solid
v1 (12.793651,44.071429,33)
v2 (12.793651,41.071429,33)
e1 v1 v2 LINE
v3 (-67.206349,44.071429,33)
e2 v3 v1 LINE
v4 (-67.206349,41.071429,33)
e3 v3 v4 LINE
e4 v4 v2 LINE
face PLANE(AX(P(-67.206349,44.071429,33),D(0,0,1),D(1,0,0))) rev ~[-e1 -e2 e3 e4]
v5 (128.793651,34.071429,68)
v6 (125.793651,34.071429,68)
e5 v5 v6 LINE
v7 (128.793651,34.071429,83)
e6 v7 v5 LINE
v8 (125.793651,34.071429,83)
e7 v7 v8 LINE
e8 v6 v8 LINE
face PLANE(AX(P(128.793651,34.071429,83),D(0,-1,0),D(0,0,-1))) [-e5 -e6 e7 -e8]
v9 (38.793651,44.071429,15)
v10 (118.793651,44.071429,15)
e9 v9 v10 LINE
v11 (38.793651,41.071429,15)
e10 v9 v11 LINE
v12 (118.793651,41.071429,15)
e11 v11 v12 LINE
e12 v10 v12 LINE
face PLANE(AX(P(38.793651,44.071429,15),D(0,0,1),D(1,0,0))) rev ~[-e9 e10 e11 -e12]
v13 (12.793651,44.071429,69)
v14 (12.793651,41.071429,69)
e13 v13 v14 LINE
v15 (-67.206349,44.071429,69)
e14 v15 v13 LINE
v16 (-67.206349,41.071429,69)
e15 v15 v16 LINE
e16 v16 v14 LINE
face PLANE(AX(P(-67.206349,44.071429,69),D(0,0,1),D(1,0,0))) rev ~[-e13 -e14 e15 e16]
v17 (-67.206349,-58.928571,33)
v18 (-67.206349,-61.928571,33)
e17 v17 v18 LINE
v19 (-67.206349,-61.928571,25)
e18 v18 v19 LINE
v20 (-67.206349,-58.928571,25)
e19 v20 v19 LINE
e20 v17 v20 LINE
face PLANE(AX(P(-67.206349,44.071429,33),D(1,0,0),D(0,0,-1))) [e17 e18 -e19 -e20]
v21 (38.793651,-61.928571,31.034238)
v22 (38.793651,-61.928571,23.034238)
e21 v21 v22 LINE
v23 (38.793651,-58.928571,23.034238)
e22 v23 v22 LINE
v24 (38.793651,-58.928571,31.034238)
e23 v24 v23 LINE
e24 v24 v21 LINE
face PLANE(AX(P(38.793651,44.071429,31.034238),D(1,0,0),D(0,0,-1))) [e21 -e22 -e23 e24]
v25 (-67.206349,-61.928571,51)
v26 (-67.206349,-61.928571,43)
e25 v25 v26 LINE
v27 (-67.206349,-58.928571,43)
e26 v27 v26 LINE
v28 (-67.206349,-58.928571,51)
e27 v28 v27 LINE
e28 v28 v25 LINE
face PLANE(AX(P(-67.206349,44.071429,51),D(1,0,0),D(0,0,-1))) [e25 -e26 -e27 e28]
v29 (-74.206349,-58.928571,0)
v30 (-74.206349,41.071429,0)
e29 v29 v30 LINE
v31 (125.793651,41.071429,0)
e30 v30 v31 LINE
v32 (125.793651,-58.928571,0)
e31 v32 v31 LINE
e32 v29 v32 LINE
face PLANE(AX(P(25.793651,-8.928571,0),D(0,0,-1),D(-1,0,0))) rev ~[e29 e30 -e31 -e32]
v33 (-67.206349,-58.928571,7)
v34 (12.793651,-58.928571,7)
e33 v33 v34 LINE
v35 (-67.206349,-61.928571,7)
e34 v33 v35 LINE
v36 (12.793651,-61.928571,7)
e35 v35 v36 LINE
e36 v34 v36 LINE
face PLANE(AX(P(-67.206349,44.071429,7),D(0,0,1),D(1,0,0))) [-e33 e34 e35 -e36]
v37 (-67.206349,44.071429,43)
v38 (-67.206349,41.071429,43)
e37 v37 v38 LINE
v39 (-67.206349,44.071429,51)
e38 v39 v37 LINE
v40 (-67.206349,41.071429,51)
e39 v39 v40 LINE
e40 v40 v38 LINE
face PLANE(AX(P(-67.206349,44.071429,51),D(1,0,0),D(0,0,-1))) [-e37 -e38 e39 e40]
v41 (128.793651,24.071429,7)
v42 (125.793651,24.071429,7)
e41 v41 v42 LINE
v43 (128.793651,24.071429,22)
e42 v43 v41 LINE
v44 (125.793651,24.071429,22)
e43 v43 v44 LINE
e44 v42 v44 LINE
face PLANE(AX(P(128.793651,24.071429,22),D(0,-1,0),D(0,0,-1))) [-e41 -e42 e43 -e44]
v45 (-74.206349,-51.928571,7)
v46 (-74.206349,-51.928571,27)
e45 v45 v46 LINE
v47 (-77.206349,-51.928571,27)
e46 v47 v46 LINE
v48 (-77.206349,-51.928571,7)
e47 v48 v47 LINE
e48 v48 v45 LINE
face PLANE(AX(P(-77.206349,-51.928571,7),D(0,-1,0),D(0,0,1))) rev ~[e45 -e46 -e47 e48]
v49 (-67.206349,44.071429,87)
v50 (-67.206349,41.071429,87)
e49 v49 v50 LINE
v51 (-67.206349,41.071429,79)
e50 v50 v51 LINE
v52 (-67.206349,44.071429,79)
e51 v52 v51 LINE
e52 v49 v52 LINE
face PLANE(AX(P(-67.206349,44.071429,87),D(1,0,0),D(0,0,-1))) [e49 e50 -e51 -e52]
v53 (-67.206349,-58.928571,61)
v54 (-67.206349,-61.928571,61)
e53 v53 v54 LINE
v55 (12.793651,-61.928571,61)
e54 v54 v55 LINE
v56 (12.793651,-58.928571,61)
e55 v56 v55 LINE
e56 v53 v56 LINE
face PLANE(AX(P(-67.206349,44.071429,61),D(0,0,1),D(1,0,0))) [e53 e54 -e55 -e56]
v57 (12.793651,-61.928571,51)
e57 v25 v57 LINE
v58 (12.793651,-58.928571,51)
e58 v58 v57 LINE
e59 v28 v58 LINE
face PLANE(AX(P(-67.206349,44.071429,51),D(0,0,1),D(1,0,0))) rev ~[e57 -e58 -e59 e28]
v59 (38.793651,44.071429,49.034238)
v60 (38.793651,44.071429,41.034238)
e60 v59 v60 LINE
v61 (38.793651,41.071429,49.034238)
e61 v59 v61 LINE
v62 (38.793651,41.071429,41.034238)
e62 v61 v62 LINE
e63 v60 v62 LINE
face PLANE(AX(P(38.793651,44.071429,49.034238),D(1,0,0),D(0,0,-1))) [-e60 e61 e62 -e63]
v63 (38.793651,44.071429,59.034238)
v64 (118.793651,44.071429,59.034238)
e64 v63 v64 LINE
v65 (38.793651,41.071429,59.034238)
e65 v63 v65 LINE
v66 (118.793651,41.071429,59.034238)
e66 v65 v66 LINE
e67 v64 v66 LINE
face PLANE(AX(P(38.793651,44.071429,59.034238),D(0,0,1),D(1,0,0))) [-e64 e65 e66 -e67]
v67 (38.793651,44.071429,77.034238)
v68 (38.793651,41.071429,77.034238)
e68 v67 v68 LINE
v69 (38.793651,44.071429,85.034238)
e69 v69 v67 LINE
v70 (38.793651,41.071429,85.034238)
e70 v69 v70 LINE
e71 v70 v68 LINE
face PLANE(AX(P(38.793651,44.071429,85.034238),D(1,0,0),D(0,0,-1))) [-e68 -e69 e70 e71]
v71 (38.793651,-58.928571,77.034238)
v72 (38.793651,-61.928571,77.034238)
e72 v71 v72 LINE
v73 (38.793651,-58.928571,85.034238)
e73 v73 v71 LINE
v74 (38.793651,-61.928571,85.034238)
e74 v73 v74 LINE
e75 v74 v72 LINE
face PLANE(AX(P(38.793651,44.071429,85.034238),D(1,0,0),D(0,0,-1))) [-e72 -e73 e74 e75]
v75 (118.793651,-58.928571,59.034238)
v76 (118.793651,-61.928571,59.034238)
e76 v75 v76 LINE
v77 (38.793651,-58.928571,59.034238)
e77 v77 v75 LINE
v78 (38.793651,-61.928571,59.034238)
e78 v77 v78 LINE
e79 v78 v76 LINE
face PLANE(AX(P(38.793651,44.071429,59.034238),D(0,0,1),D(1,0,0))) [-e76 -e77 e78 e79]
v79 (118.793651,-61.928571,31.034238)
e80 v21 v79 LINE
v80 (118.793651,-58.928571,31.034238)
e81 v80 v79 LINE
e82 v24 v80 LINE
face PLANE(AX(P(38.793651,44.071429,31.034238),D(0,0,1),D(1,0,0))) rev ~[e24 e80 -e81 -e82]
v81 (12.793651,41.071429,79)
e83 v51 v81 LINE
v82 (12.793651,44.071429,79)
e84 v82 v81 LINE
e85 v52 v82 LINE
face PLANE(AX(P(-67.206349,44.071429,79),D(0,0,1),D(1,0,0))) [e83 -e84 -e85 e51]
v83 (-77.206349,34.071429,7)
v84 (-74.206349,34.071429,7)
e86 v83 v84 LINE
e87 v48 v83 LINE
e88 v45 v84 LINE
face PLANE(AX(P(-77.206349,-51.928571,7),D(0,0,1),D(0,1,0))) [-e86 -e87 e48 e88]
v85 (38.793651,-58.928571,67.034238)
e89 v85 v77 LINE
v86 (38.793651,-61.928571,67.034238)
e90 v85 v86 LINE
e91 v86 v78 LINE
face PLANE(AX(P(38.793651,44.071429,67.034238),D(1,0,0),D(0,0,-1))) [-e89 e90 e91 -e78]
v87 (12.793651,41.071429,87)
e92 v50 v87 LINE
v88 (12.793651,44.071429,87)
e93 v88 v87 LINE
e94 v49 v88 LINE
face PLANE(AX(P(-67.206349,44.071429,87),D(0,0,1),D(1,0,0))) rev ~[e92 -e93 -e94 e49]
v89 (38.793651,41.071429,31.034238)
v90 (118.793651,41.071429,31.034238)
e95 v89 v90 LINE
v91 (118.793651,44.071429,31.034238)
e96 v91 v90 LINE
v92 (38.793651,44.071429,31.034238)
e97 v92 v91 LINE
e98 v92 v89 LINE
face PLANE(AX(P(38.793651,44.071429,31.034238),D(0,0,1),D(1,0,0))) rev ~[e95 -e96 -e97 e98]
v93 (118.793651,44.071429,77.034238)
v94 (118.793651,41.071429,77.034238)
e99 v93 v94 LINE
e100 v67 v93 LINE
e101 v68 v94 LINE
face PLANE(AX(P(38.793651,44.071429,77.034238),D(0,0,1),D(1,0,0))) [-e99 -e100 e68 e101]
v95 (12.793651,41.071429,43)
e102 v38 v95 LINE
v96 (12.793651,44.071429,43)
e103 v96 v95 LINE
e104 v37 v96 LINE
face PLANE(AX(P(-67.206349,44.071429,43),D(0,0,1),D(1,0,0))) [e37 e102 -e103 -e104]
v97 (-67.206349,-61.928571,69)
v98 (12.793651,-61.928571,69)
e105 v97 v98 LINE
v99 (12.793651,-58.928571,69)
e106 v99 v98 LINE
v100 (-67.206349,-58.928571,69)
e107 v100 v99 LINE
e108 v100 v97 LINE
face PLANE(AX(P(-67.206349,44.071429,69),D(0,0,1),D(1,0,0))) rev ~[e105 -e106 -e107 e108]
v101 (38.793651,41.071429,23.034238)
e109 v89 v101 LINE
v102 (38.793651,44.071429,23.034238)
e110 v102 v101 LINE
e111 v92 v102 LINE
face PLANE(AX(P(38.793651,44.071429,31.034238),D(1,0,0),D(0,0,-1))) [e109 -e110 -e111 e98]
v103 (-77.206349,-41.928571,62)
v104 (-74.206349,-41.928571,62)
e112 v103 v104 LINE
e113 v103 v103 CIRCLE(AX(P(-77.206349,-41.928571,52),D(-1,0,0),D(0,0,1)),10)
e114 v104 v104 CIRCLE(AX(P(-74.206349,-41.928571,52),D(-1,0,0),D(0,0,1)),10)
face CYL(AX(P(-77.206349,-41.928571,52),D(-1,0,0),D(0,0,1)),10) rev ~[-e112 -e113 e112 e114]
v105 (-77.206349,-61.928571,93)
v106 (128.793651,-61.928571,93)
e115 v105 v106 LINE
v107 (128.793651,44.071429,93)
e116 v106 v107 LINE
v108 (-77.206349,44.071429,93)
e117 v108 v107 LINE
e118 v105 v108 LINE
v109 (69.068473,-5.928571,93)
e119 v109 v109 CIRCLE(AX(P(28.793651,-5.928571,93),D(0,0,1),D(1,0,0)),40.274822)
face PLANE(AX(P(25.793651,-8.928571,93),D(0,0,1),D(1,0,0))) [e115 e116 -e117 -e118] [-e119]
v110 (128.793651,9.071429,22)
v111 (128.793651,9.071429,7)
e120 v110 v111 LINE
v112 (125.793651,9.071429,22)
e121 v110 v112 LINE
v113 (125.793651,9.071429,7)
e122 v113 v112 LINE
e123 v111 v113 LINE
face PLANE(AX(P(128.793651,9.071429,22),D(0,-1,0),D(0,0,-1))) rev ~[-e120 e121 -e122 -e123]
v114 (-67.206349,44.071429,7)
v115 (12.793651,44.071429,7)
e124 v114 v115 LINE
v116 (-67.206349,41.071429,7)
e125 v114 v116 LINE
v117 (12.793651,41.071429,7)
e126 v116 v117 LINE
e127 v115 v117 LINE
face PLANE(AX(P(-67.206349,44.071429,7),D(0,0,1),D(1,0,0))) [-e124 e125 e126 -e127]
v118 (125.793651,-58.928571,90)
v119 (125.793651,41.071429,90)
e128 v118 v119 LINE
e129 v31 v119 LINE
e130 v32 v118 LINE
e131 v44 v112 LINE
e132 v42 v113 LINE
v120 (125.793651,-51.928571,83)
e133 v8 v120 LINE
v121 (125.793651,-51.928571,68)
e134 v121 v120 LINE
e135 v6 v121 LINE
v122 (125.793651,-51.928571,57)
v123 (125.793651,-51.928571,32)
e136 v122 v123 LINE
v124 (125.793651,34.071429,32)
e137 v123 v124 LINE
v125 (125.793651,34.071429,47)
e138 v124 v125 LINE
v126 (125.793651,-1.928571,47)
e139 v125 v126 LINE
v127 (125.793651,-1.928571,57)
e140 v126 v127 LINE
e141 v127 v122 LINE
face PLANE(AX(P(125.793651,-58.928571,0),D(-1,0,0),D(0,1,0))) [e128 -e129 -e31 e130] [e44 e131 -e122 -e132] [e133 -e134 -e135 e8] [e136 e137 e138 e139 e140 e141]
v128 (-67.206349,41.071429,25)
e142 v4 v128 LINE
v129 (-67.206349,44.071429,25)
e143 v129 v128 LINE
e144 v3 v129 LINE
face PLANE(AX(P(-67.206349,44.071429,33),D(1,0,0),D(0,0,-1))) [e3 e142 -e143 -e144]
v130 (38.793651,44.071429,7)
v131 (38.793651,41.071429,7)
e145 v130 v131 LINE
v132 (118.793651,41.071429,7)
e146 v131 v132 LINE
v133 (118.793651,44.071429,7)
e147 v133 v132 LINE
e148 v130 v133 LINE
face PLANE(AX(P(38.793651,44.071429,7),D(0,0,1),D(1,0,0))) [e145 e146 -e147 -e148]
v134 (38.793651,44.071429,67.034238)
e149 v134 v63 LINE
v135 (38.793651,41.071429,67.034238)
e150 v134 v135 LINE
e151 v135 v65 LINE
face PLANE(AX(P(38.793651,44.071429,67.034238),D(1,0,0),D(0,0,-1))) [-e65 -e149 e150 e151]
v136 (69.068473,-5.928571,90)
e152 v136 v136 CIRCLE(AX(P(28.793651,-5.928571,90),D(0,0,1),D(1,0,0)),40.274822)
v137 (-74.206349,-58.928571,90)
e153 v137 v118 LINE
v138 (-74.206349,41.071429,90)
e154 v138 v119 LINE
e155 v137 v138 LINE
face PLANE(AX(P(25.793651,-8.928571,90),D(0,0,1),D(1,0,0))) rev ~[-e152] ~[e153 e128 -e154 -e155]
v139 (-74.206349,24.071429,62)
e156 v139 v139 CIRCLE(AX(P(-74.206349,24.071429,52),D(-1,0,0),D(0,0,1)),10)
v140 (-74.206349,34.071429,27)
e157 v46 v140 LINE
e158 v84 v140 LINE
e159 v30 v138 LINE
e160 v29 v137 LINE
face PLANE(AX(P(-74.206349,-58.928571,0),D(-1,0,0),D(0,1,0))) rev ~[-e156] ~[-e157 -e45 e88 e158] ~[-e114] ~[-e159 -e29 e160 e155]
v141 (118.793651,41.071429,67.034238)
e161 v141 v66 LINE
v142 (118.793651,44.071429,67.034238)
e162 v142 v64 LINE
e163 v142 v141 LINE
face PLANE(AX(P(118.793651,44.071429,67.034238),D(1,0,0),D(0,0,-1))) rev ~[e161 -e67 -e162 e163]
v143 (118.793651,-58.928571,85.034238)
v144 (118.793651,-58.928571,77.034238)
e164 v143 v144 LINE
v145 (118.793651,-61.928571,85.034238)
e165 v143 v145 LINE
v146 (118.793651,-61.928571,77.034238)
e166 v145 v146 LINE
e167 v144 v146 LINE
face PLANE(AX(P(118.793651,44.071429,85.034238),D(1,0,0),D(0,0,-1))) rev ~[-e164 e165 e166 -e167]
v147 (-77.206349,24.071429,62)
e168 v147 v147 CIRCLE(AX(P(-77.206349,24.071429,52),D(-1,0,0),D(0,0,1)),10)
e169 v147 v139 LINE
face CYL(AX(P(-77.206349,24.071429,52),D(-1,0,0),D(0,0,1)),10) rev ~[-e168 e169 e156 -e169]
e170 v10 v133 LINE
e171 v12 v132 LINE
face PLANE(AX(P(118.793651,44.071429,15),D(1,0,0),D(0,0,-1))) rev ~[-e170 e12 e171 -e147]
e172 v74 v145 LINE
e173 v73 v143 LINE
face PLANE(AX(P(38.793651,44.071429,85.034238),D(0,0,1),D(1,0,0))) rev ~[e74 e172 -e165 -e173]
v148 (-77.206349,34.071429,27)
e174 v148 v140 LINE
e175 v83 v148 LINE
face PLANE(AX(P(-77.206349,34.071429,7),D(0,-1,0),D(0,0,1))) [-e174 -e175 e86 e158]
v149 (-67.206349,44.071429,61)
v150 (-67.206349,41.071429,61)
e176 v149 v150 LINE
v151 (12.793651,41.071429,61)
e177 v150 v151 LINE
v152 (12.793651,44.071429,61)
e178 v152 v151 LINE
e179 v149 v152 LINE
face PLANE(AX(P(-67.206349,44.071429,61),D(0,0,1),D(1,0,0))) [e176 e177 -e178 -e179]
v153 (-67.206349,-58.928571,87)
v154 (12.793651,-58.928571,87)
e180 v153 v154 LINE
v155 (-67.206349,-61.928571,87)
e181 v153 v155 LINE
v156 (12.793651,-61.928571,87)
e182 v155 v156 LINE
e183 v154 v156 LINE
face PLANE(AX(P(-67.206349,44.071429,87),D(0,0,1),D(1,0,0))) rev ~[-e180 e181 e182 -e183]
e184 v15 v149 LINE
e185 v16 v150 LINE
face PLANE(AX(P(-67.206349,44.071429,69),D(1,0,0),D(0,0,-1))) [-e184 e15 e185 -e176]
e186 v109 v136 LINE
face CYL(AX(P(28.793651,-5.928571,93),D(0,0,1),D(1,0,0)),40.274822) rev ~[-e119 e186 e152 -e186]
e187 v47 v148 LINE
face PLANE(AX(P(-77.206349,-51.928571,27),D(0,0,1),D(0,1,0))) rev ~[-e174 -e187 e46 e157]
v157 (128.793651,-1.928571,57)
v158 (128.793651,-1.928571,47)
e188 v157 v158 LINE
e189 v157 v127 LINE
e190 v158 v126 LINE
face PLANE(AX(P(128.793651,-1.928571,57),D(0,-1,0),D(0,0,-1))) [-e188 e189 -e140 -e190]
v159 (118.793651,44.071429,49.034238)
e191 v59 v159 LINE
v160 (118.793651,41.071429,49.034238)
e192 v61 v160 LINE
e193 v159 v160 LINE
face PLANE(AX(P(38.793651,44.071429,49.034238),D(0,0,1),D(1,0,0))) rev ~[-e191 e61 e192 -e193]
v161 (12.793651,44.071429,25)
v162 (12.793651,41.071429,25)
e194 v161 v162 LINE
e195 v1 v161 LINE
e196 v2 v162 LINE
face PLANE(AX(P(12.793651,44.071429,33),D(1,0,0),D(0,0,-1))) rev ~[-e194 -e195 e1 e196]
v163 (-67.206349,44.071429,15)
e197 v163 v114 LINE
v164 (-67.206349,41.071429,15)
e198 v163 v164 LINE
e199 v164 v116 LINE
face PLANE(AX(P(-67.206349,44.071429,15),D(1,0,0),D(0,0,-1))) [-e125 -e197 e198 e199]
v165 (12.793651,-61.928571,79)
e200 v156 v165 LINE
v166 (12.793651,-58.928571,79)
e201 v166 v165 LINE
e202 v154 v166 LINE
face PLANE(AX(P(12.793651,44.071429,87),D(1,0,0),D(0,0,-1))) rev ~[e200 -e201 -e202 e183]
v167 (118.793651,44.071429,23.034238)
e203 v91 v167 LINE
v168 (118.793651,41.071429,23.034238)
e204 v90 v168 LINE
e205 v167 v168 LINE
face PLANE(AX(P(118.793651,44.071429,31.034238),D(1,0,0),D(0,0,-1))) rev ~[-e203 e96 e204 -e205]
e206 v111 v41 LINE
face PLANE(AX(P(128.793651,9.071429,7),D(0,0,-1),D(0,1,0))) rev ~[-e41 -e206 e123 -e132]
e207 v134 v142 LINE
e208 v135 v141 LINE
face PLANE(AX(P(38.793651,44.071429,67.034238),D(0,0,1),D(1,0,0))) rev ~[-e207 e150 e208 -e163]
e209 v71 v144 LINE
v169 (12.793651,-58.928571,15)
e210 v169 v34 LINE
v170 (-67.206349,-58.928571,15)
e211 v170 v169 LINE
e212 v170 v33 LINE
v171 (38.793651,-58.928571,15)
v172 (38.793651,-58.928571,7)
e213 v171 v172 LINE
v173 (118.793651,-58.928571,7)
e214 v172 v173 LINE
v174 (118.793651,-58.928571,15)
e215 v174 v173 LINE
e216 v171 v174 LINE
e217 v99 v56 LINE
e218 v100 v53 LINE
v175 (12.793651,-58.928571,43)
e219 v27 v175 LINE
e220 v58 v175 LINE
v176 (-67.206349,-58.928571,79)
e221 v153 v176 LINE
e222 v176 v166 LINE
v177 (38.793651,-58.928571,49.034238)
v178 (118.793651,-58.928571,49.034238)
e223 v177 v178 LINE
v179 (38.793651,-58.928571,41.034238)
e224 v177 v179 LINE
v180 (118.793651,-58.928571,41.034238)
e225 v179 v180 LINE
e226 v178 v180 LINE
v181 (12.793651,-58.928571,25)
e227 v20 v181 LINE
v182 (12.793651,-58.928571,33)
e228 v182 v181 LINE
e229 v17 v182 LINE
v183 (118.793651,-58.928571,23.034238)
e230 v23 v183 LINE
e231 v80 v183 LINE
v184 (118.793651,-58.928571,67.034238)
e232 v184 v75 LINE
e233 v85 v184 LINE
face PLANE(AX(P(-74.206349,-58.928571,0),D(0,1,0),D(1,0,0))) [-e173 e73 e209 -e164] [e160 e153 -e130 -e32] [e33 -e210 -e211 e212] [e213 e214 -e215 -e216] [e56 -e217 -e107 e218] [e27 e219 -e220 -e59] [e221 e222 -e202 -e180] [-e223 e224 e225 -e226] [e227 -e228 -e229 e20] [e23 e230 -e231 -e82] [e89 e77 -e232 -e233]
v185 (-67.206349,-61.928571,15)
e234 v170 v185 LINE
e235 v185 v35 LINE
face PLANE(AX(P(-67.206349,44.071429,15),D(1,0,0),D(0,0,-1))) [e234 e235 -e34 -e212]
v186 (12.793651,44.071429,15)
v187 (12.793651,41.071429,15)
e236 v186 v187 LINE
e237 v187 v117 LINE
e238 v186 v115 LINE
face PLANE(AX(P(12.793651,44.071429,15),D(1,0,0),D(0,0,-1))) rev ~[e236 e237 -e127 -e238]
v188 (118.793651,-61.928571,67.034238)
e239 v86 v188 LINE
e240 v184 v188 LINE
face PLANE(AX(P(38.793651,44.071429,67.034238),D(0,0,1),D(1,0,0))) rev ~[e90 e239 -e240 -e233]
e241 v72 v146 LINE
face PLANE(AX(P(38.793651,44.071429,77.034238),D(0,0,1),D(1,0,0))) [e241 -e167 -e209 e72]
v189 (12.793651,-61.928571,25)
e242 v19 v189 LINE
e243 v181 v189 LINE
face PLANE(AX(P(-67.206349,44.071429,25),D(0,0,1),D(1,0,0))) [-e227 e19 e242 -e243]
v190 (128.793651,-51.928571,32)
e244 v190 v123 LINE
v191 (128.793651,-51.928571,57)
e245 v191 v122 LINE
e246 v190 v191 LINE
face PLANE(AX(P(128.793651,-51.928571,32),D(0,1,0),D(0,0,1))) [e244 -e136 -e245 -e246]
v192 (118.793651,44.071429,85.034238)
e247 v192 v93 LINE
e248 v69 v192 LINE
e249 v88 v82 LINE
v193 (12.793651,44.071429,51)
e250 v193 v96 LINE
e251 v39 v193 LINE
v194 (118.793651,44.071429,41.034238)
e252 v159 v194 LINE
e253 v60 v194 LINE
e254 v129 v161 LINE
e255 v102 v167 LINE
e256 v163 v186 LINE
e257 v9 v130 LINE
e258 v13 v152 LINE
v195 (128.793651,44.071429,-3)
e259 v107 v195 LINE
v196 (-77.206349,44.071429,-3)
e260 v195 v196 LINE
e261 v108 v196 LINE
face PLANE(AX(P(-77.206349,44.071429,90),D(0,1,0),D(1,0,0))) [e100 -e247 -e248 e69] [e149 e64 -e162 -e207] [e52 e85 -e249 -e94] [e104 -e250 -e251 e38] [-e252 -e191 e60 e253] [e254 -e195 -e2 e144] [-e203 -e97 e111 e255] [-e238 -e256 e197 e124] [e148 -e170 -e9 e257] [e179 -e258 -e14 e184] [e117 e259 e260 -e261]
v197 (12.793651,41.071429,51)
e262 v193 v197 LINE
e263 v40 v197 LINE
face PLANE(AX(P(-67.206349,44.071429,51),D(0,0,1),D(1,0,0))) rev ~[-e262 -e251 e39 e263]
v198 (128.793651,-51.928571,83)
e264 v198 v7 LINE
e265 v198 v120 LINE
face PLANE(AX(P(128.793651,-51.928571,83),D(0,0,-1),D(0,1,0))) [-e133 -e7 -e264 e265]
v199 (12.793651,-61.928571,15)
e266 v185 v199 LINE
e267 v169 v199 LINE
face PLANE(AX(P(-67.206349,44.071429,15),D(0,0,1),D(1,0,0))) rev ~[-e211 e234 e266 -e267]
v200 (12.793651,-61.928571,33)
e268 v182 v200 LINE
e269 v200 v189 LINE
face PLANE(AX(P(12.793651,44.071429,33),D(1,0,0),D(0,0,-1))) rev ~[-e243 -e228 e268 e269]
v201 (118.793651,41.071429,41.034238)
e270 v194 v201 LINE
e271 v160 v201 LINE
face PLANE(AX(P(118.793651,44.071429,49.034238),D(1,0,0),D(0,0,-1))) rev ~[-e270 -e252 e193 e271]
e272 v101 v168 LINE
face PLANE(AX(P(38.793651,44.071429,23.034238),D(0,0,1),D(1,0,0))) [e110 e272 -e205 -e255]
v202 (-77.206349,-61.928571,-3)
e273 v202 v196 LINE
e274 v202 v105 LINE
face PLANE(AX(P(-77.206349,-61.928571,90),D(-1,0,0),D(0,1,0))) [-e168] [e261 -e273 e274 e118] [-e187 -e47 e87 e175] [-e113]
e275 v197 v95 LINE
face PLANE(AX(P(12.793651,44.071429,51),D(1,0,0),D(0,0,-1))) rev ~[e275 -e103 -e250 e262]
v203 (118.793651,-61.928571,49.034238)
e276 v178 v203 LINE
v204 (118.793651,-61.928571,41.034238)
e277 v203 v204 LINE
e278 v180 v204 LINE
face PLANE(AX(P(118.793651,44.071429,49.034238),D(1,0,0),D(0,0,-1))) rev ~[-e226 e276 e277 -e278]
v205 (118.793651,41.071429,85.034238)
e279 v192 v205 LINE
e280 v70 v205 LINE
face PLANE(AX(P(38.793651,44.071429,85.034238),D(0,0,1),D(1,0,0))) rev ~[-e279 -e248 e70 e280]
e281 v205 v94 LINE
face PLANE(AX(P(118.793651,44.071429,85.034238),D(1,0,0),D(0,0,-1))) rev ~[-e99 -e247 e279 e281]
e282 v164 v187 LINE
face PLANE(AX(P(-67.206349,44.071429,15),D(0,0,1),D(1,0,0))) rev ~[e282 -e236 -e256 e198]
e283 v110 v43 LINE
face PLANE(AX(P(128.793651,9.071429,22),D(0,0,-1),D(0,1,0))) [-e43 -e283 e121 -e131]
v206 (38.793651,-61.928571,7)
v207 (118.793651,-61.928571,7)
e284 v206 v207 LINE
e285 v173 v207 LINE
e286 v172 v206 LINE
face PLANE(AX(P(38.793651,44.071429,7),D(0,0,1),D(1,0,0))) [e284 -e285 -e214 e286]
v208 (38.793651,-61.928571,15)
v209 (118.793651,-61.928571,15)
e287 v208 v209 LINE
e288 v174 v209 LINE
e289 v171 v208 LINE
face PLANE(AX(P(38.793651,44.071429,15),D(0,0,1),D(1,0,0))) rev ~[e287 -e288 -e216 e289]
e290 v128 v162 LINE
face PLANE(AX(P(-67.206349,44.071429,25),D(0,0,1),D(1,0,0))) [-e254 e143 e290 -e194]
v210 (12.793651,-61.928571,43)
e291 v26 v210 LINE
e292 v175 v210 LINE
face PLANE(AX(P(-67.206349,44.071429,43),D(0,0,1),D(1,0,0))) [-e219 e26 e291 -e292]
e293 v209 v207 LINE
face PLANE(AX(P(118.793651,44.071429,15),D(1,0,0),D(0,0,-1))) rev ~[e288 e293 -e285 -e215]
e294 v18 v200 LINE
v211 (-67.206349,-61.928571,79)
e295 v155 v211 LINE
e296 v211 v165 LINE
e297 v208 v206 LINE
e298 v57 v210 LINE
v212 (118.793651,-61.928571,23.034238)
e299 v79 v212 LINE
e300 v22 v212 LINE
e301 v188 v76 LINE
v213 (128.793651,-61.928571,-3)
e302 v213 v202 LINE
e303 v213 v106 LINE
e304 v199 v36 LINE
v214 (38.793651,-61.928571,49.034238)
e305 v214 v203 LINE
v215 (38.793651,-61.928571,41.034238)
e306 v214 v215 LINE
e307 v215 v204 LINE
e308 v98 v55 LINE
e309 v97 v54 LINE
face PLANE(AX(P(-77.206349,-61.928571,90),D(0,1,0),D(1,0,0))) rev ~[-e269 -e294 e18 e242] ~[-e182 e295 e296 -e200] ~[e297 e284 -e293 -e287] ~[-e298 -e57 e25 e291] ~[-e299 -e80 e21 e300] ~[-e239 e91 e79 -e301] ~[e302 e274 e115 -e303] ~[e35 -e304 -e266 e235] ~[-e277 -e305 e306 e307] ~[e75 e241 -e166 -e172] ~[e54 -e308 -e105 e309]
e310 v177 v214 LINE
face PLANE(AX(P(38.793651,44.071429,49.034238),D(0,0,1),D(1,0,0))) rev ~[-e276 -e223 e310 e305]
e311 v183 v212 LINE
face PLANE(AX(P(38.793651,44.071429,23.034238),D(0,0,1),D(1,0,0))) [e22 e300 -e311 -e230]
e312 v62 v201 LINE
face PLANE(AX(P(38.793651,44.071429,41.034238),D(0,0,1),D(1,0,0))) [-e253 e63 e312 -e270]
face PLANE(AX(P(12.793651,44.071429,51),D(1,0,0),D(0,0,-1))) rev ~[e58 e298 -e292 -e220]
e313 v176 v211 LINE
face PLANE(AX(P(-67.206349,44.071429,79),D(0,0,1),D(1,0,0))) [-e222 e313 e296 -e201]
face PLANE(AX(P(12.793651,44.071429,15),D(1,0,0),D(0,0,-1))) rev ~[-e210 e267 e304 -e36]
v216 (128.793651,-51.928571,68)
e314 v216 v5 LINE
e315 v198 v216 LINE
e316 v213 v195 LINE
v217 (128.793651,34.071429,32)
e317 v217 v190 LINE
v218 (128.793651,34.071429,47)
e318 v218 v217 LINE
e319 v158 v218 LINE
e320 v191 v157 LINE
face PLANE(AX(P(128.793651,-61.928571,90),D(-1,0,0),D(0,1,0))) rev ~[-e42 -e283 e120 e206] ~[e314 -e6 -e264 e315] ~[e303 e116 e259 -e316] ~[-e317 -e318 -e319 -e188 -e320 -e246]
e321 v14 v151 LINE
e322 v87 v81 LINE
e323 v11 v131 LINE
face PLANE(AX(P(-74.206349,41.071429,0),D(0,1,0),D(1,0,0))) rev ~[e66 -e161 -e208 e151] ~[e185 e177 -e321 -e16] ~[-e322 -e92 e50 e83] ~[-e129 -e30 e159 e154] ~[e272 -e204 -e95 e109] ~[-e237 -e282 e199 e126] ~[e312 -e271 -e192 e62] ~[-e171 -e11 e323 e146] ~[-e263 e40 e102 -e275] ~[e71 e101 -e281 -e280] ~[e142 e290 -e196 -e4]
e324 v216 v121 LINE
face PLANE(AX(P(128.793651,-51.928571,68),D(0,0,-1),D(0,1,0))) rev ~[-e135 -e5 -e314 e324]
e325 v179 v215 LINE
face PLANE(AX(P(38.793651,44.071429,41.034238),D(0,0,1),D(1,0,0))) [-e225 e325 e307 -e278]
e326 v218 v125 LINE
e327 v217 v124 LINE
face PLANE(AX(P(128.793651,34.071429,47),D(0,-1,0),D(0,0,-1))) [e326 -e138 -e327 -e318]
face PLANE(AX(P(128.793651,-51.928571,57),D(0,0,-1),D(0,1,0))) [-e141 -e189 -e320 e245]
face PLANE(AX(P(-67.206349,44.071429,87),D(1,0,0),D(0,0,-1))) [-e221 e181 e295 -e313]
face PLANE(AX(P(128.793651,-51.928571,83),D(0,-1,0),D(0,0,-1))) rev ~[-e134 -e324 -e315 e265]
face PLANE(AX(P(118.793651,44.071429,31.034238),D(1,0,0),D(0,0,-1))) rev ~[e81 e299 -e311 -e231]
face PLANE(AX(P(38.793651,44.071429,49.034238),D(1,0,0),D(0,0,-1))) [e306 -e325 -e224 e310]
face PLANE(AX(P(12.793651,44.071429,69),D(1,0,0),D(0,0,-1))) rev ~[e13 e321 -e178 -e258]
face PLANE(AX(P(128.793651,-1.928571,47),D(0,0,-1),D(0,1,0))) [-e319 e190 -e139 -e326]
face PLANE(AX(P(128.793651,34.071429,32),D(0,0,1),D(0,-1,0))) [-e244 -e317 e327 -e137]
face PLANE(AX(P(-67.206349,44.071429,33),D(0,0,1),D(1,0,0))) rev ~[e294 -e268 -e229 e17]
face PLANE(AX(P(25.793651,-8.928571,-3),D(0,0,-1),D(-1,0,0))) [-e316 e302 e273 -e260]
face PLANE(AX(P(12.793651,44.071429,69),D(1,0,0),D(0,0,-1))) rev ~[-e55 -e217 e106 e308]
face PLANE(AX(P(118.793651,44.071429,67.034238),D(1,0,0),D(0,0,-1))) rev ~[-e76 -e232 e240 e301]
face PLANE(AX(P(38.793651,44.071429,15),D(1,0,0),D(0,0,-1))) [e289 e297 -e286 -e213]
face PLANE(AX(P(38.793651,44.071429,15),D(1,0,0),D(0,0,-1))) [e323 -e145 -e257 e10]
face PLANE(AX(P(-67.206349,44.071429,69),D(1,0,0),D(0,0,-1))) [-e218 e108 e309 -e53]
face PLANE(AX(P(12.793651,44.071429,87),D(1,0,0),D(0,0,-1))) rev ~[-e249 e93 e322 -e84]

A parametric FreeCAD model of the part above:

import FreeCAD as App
import Part
import Sketcher
from FreeCAD import Vector

doc = App.newDocument("Part")
params = doc.addObject("Spreadsheet::Sheet", "Params")
for row, (alias, value) in enumerate([
    ("sketch1_width", "206 mm"),
    ("sketch1_width2", "200 mm"),
    ("sketch1_height", "106 mm"),
    ("sketch1_height2", "100 mm"),
    ("pad1_length", "90 mm"),
    ("sketch2_width", "206 mm"),
    ("sketch2_height", "106 mm"),
    ("pad2_length", "3 mm"),
    ("sketch3_width", "206 mm"),
    ("sketch3_height", "106 mm"),
    ("pad3_length", "3 mm"),
    ("pocket1_length", "6 mm"),
    ("sketch5_width", "80 mm"),
    ("sketch5_height", "8 mm"),
    ("pocket2_length", "150 mm"),
    ("sketch6_diameter", "20 mm"),
    ("sketch6_width", "86 mm"),
    ("sketch6_height", "20 mm"),
    ("pocket3_length", "10 mm"),
    ("sketch7_width", "86 mm"),
    ("sketch7_width2", "36 mm"),
    ("sketch7_width3", "15 mm"),
    ("sketch7_height", "10 mm"),
    ("pocket4_length", "10 mm"),
], start=1):
    params.set(f"A{row}", alias)
    params.set(f"B{row}", "=" + value)
    params.setAlias(f"B{row}", alias)

body = doc.addObject("PartDesign::Body", "Body")

# Sketch on XY plane
sketch1 = body.newObject("Sketcher::SketchObject", "Sketch")
sketch1.AttachmentSupport = (doc.getObject("XY_Plane"), [""])
sketch1.MapMode = "FlatFace"
sketch1.addGeometry(Part.LineSegment(Vector(-77, 44, 0), Vector(-77, -62, 0)), False)
sketch1.addGeometry(Part.LineSegment(Vector(-77, -62, 0), Vector(129, -62, 0)), False)
sketch1.addGeometry(Part.LineSegment(Vector(129, -62, 0), Vector(129, 44, 0)), False)
sketch1.addGeometry(Part.LineSegment(Vector(129, 44, 0), Vector(-77, 44, 0)), False)
sketch1.addGeometry(Part.LineSegment(Vector(126, -59, 0), Vector(-74, -59, 0)), False)
sketch1.addGeometry(Part.LineSegment(Vector(-74, -59, 0), Vector(-74, 41, 0)), False)
sketch1.addGeometry(Part.LineSegment(Vector(-74, 41, 0), Vector(126, 41, 0)), False)
sketch1.addGeometry(Part.LineSegment(Vector(126, 41, 0), Vector(126, -59, 0)), False)
sketch1.addConstraint(Sketcher.Constraint("Coincident", 0, 2, 1, 1))
sketch1.addConstraint(Sketcher.Constraint("Coincident", 1, 2, 2, 1))
sketch1.addConstraint(Sketcher.Constraint("Coincident", 2, 2, 3, 1))
sketch1.addConstraint(Sketcher.Constraint("Coincident", 3, 2, 0, 1))
sketch1.addConstraint(Sketcher.Constraint("Coincident", 4, 2, 5, 1))
sketch1.addConstraint(Sketcher.Constraint("Coincident", 5, 2, 6, 1))
sketch1.addConstraint(Sketcher.Constraint("Coincident", 6, 2, 7, 1))
sketch1.addConstraint(Sketcher.Constraint("Coincident", 7, 2, 4, 1))
sketch1.addConstraint(Sketcher.Constraint("Vertical", 0))
sketch1.addConstraint(Sketcher.Constraint("Horizontal", 1))
sketch1.addConstraint(Sketcher.Constraint("Vertical", 2))
sketch1.addConstraint(Sketcher.Constraint("Horizontal", 3))
sketch1.addConstraint(Sketcher.Constraint("Horizontal", 4))
sketch1.addConstraint(Sketcher.Constraint("Vertical", 5))
sketch1.addConstraint(Sketcher.Constraint("Horizontal", 6))
sketch1.addConstraint(Sketcher.Constraint("Vertical", 7))
sketch1.addConstraint(Sketcher.Constraint("DistanceX", 1, 1, 1, 2, 206.0))
sketch1.addConstraint(Sketcher.Constraint("DistanceX", 4, 2, 4, 1, 200.0))
sketch1.addConstraint(Sketcher.Constraint("DistanceY", 0, 2, 0, 1, 106.0))
sketch1.addConstraint(Sketcher.Constraint("DistanceY", 5, 1, 5, 2, 100.0))
sketch1.addConstraint(Sketcher.Constraint("DistanceX", 0, 2, 4, 2, 3.0))
sketch1.addConstraint(Sketcher.Constraint("DistanceY", 0, 2, 4, 2, 3.0))
sketch1.addConstraint(Sketcher.Constraint("DistanceX", 0, 2, -1, 1, 77.206349))
sketch1.addConstraint(Sketcher.Constraint("DistanceY", 0, 2, -1, 1, 61.928571))
sketch1.setExpression("Constraints[16]", "Params.sketch1_width")
sketch1.setExpression("Constraints[17]", "Params.sketch1_width2")
sketch1.setExpression("Constraints[18]", "Params.sketch1_height")
sketch1.setExpression("Constraints[19]", "Params.sketch1_height2")
pad1 = body.newObject("PartDesign::Pad", "Pad")
pad1.Profile = sketch1
pad1.setExpression("Length", "Params.pad1_length")

# Sketch on XY plane
sketch2 = body.newObject("Sketcher::SketchObject", "Sketch001")
sketch2.AttachmentSupport = (doc.getObject("XY_Plane"), [""])
sketch2.MapMode = "FlatFace"
sketch2.addGeometry(Part.LineSegment(Vector(129, 44, 0), Vector(129, -62, 0)), False)
sketch2.addGeometry(Part.LineSegment(Vector(129, -62, 0), Vector(-77, -62, 0)), False)
sketch2.addGeometry(Part.LineSegment(Vector(-77, -62, 0), Vector(-77, 44, 0)), False)
sketch2.addGeometry(Part.LineSegment(Vector(-77, 44, 0), Vector(129, 44, 0)), False)
sketch2.addConstraint(Sketcher.Constraint("Coincident", 0, 2, 1, 1))
sketch2.addConstraint(Sketcher.Constraint("Coincident", 1, 2, 2, 1))
sketch2.addConstraint(Sketcher.Constraint("Coincident", 2, 2, 3, 1))
sketch2.addConstraint(Sketcher.Constraint("Coincident", 3, 2, 0, 1))
sketch2.addConstraint(Sketcher.Constraint("Vertical", 0))
sketch2.addConstraint(Sketcher.Constraint("Horizontal", 1))
sketch2.addConstraint(Sketcher.Constraint("Vertical", 2))
sketch2.addConstraint(Sketcher.Constraint("Horizontal", 3))
sketch2.addConstraint(Sketcher.Constraint("DistanceX", 1, 2, 1, 1, 206.0))
sketch2.addConstraint(Sketcher.Constraint("DistanceY", 0, 2, 0, 1, 106.0))
sketch2.addConstraint(Sketcher.Constraint("DistanceX", -1, 1, 0, 2, 128.793651))
sketch2.addConstraint(Sketcher.Constraint("DistanceY", 0, 2, -1, 1, 61.928571))
sketch2.setExpression("Constraints[8]", "Params.sketch2_width")
sketch2.setExpression("Constraints[9]", "Params.sketch2_height")
pad2 = body.newObject("PartDesign::Pad", "Pad001")
pad2.Profile = sketch2
pad2.setExpression("Length", "Params.pad2_length")
pad2.Reversed = True

# Sketch on XY plane
sketch3 = body.newObject("Sketcher::SketchObject", "Sketch002")
sketch3.AttachmentSupport = (doc.getObject("XY_Plane"), [""])
sketch3.MapMode = "FlatFace"
sketch3.AttachmentOffset = App.Placement(Vector(0, 0, 90), App.Rotation())
sketch3.addGeometry(Part.LineSegment(Vector(-77, 44, 0), Vector(-77, -62, 0)), False)
sketch3.addGeometry(Part.LineSegment(Vector(-77, -62, 0), Vector(129, -62, 0)), False)
sketch3.addGeometry(Part.LineSegment(Vector(129, -62, 0), Vector(129, 44, 0)), False)
sketch3.addGeometry(Part.LineSegment(Vector(129, 44, 0), Vector(-77, 44, 0)), False)
sketch3.addConstraint(Sketcher.Constraint("Coincident", 0, 2, 1, 1))
sketch3.addConstraint(Sketcher.Constraint("Coincident", 1, 2, 2, 1))
sketch3.addConstraint(Sketcher.Constraint("Coincident", 2, 2, 3, 1))
sketch3.addConstraint(Sketcher.Constraint("Coincident", 3, 2, 0, 1))
sketch3.addConstraint(Sketcher.Constraint("Vertical", 0))
sketch3.addConstraint(Sketcher.Constraint("Horizontal", 1))
sketch3.addConstraint(Sketcher.Constraint("Vertical", 2))
sketch3.addConstraint(Sketcher.Constraint("Horizontal", 3))
sketch3.addConstraint(Sketcher.Constraint("DistanceX", 1, 1, 1, 2, 206.0))
sketch3.addConstraint(Sketcher.Constraint("DistanceY", 0, 2, 0, 1, 106.0))
sketch3.addConstraint(Sketcher.Constraint("DistanceX", 0, 2, -1, 1, 77.206349))
sketch3.addConstraint(Sketcher.Constraint("DistanceY", 0, 2, -1, 1, 61.928571))
sketch3.setExpression("Constraints[8]", "Params.sketch3_width")
sketch3.setExpression("Constraints[9]", "Params.sketch3_height")
pad3 = body.newObject("PartDesign::Pad", "Pad002")
pad3.Profile = sketch3
pad3.setExpression("Length", "Params.pad3_length")

# Sketch on XY plane
sketch4 = body.newObject("Sketcher::SketchObject", "Sketch003")
sketch4.AttachmentSupport = (doc.getObject("XY_Plane"), [""])
sketch4.MapMode = "FlatFace"
sketch4.AttachmentOffset = App.Placement(Vector(0, 0, 93), App.Rotation())
sketch4.addGeometry(Part.Circle(Vector(29, -6, 0), Vector(0, 0, 1), 40), False)
sketch4.addConstraint(Sketcher.Constraint("Diameter", 0, 80.549644))
sketch4.addConstraint(Sketcher.Constraint("DistanceX", -1, 1, 0, 3, 28.793651))
sketch4.addConstraint(Sketcher.Constraint("DistanceY", 0, 3, -1, 1, 5.928571))
pocket1 = body.newObject("PartDesign::Pocket", "Pocket")
pocket1.Profile = sketch4
pocket1.setExpression("Length", "Params.pocket1_length")

# Sketch on XZ plane
sketch5 = body.newObject("Sketcher::SketchObject", "Sketch004")
sketch5.AttachmentSupport = (doc.getObject("XZ_Plane"), [""])
sketch5.MapMode = "FlatFace"
sketch5.AttachmentOffset = App.Placement(Vector(0, 0, -44.071429), App.Rotation())
sketch5.addGeometry(Part.LineSegment(Vector(-67, 7, 0), Vector(-67, 15, 0)), False)
sketch5.addGeometry(Part.LineSegment(Vector(-67, 15, 0), Vector(13, 15, 0)), False)
sketch5.addGeometry(Part.LineSegment(Vector(13, 15, 0), Vector(13, 7, 0)), False)
sketch5.addGeometry(Part.LineSegment(Vector(13, 7, 0), Vector(-67, 7, 0)), False)
sketch5.addGeometry(Part.LineSegment(Vector(39, 7, 0), Vector(39, 15, 0)), False)
sketch5.addGeometry(Part.LineSegment(Vector(39, 15, 0), Vector(119, 15, 0)), False)
sketch5.addGeometry(Part.LineSegment(Vector(119, 15, 0), Vector(119, 7, 0)), False)
sketch5.addGeometry(Part.LineSegment(Vector(119, 7, 0), Vector(39, 7, 0)), False)
sketch5.addGeometry(Part.LineSegment(Vector(39, 23, 0), Vector(39, 31, 0)), False)
sketch5.addGeometry(Part.LineSegment(Vector(39, 31, 0), Vector(119, 31, 0)), False)
sketch5.addGeometry(Part.LineSegment(Vector(119, 31, 0), Vector(119, 23, 0)), False)
sketch5.addGeometry(Part.LineSegment(Vector(119, 23, 0), Vector(39, 23, 0)), False)
sketch5.addGeometry(Part.LineSegment(Vector(39, 41, 0), Vector(39, 49, 0)), False)
sketch5.addGeometry(Part.LineSegment(Vector(39, 49, 0), Vector(119, 49, 0)), False)
sketch5.addGeometry(Part.LineSegment(Vector(119, 49, 0), Vector(119, 41, 0)), False)
sketch5.addGeometry(Part.LineSegment(Vector(119, 41, 0), Vector(39, 41, 0)), False)
sketch5.addGeometry(Part.LineSegment(Vector(39, 59, 0), Vector(39, 67, 0)), False)
sketch5.addGeometry(Part.LineSegment(Vector(39, 67, 0), Vector(119, 67, 0)), False)
sketch5.addGeometry(Part.LineSegment(Vector(119, 67, 0), Vector(119, 59, 0)), False)
sketch5.addGeometry(Part.LineSegment(Vector(119, 59, 0), Vector(39, 59, 0)), False)
sketch5.addGeometry(Part.LineSegment(Vector(39, 77, 0), Vector(39, 85, 0)), False)
sketch5.addGeometry(Part.LineSegment(Vector(39, 85, 0), Vector(119, 85, 0)), False)
sketch5.addGeometry(Part.LineSegment(Vector(119, 85, 0), Vector(119, 77, 0)), False)
sketch5.addGeometry(Part.LineSegment(Vector(119, 77, 0), Vector(39, 77, 0)), False)
sketch5.addGeometry(Part.LineSegment(Vector(-67, 25, 0), Vector(-67, 33, 0)), False)
sketch5.addGeometry(Part.LineSegment(Vector(-67, 33, 0), Vector(13, 33, 0)), False)
sketch5.addGeometry(Part.LineSegment(Vector(13, 33, 0), Vector(13, 25, 0)), False)
sketch5.addGeometry(Part.LineSegment(Vector(13, 25, 0), Vector(-67, 25, 0)), False)
sketch5.addGeometry(Part.LineSegment(Vector(-67, 43, 0), Vector(-67, 51, 0)), False)
sketch5.addGeometry(Part.LineSegment(Vector(-67, 51, 0), Vector(13, 51, 0)), False)
sketch5.addGeometry(Part.LineSegment(Vector(13, 51, 0), Vector(13, 43, 0)), False)
sketch5.addGeometry(Part.LineSegment(Vector(13, 43, 0), Vector(-67, 43, 0)), False)
sketch5.addGeometry(Part.LineSegment(Vector(-67, 61, 0), Vector(-67, 69, 0)), False)
sketch5.addGeometry(Part.LineSegment(Vector(-67, 69, 0), Vector(13, 69, 0)), False)
sketch5.addGeometry(Part.LineSegment(Vector(13, 69, 0), Vector(13, 61, 0)), False)
sketch5.addGeometry(Part.LineSegment(Vector(13, 61, 0), Vector(-67, 61, 0)), False)
sketch5.addGeometry(Part.LineSegment(Vector(-67, 79, 0), Vector(-67, 87, 0)), False)
sketch5.addGeometry(Part.LineSegment(Vector(-67, 87, 0), Vector(13, 87, 0)), False)
sketch5.addGeometry(Part.LineSegment(Vector(13, 87, 0), Vector(13, 79, 0)), False)
sketch5.addGeometry(Part.LineSegment(Vector(13, 79, 0), Vector(-67, 79, 0)), False)
sketch5.addConstraint(Sketcher.Constraint("Coincident", 0, 2, 1, 1))
sketch5.addConstraint(Sketcher.Constraint("Coincident", 1, 2, 2, 1))
sketch5.addConstraint(Sketcher.Constraint("Coincident", 2, 2, 3, 1))
sketch5.addConstraint(Sketcher.Constraint("Coincident", 3, 2, 0, 1))
sketch5.addConstraint(Sketcher.Constraint("Coincident", 4, 2, 5, 1))
sketch5.addConstraint(Sketcher.Constraint("Coincident", 5, 2, 6, 1))
sketch5.addConstraint(Sketcher.Constraint("Coincident", 6, 2, 7, 1))
sketch5.addConstraint(Sketcher.Constraint("Coincident", 7, 2, 4, 1))
sketch5.addConstraint(Sketcher.Constraint("Coincident", 8, 2, 9, 1))
sketch5.addConstraint(Sketcher.Constraint("Coincident", 9, 2, 10, 1))
sketch5.addConstraint(Sketcher.Constraint("Coincident", 10, 2, 11, 1))
sketch5.addConstraint(Sketcher.Constraint("Coincident", 11, 2, 8, 1))
sketch5.addConstraint(Sketcher.Constraint("Coincident", 12, 2, 13, 1))
sketch5.addConstraint(Sketcher.Constraint("Coincident", 13, 2, 14, 1))
sketch5.addConstraint(Sketcher.Constraint("Coincident", 14, 2, 15, 1))
sketch5.addConstraint(Sketcher.Constraint("Coincident", 15, 2, 12, 1))
sketch5.addConstraint(Sketcher.Constraint("Coincident", 16, 2, 17, 1))
sketch5.addConstraint(Sketcher.Constraint("Coincident", 17, 2, 18, 1))
sketch5.addConstraint(Sketcher.Constraint("Coincident", 18, 2, 19, 1))
sketch5.addConstraint(Sketcher.Constraint("Coincident", 19, 2, 16, 1))
sketch5.addConstraint(Sketcher.Constraint("Coincident", 20, 2, 21, 1))
sketch5.addConstraint(Sketcher.Constraint("Coincident", 21, 2, 22, 1))
sketch5.addConstraint(Sketcher.Constraint("Coincident", 22, 2, 23, 1))
sketch5.addConstraint(Sketcher.Constraint("Coincident", 23, 2, 20, 1))
sketch5.addConstraint(Sketcher.Constraint("Coincident", 24, 2, 25, 1))
sketch5.addConstraint(Sketcher.Constraint("Coincident", 25, 2, 26, 1))
sketch5.addConstraint(Sketcher.Constraint("Coincident", 26, 2, 27, 1))
sketch5.addConstraint(Sketcher.Constraint("Coincident", 27, 2, 24, 1))
sketch5.addConstraint(Sketcher.Constraint("Coincident", 28, 2, 29, 1))
sketch5.addConstraint(Sketcher.Constraint("Coincident", 29, 2, 30, 1))
sketch5.addConstraint(Sketcher.Constraint("Coincident", 30, 2, 31, 1))
sketch5.addConstraint(Sketcher.Constraint("Coincident", 31, 2, 28, 1))
sketch5.addConstraint(Sketcher.Constraint("Coincident", 32, 2, 33, 1))
sketch5.addConstraint(Sketcher.Constraint("Coincident", 33, 2, 34, 1))
sketch5.addConstraint(Sketcher.Constraint("Coincident", 34, 2, 35, 1))
sketch5.addConstraint(Sketcher.Constraint("Coincident", 35, 2, 32, 1))
sketch5.addConstraint(Sketcher.Constraint("Coincident", 36, 2, 37, 1))
sketch5.addConstraint(Sketcher.Constraint("Coincident", 37, 2, 38, 1))
sketch5.addConstraint(Sketcher.Constraint("Coincident", 38, 2, 39, 1))
sketch5.addConstraint(Sketcher.Constraint("Coincident", 39, 2, 36, 1))
sketch5.addConstraint(Sketcher.Constraint("Vertical", 0))
sketch5.addConstraint(Sketcher.Constraint("Horizontal", 1))
sketch5.addConstraint(Sketcher.Constraint("Vertical", 2))
sketch5.addConstraint(Sketcher.Constraint("Horizontal", 3))
sketch5.addConstraint(Sketcher.Constraint("Vertical", 4))
sketch5.addConstraint(Sketcher.Constraint("Horizontal", 5))
sketch5.addConstraint(Sketcher.Constraint("Vertical", 6))
sketch5.addConstraint(Sketcher.Constraint("Horizontal", 7))
sketch5.addConstraint(Sketcher.Constraint("Vertical", 8))
sketch5.addConstraint(Sketcher.Constraint("Horizontal", 9))
sketch5.addConstraint(Sketcher.Constraint("Vertical", 10))
sketch5.addConstraint(Sketcher.Constraint("Horizontal", 11))
sketch5.addConstraint(Sketcher.Constraint("Vertical", 12))
sketch5.addConstraint(Sketcher.Constraint("Horizontal", 13))
sketch5.addConstraint(Sketcher.Constraint("Vertical", 14))
sketch5.addConstraint(Sketcher.Constraint("Horizontal", 15))
sketch5.addConstraint(Sketcher.Constraint("Vertical", 16))
sketch5.addConstraint(Sketcher.Constraint("Horizontal", 17))
sketch5.addConstraint(Sketcher.Constraint("Vertical", 18))
sketch5.addConstraint(Sketcher.Constraint("Horizontal", 19))
sketch5.addConstraint(Sketcher.Constraint("Vertical", 20))
sketch5.addConstraint(Sketcher.Constraint("Horizontal", 21))
sketch5.addConstraint(Sketcher.Constraint("Vertical", 22))
sketch5.addConstraint(Sketcher.Constraint("Horizontal", 23))
sketch5.addConstraint(Sketcher.Constraint("Vertical", 24))
sketch5.addConstraint(Sketcher.Constraint("Horizontal", 25))
sketch5.addConstraint(Sketcher.Constraint("Vertical", 26))
sketch5.addConstraint(Sketcher.Constraint("Horizontal", 27))
sketch5.addConstraint(Sketcher.Constraint("Vertical", 28))
sketch5.addConstraint(Sketcher.Constraint("Horizontal", 29))
sketch5.addConstraint(Sketcher.Constraint("Vertical", 30))
sketch5.addConstraint(Sketcher.Constraint("Horizontal", 31))
sketch5.addConstraint(Sketcher.Constraint("Vertical", 32))
sketch5.addConstraint(Sketcher.Constraint("Horizontal", 33))
sketch5.addConstraint(Sketcher.Constraint("Vertical", 34))
sketch5.addConstraint(Sketcher.Constraint("Horizontal", 35))
sketch5.addConstraint(Sketcher.Constraint("Vertical", 36))
sketch5.addConstraint(Sketcher.Constraint("Horizontal", 37))
sketch5.addConstraint(Sketcher.Constraint("Vertical", 38))
sketch5.addConstraint(Sketcher.Constraint("Horizontal", 39))
sketch5.addConstraint(Sketcher.Constraint("Horizontal", 1, 2, 4, 2))
sketch5.addConstraint(Sketcher.Constraint("Horizontal", 3, 2, 6, 2))
sketch5.addConstraint(Sketcher.Constraint("Vertical", 7, 2, 8, 2))
sketch5.addConstraint(Sketcher.Constraint("Vertical", 6, 2, 9, 2))
sketch5.addConstraint(Sketcher.Constraint("Vertical", 11, 2, 12, 2))
sketch5.addConstraint(Sketcher.Constraint("Vertical", 10, 2, 13, 2))
sketch5.addConstraint(Sketcher.Constraint("Vertical", 15, 2, 16, 2))
sketch5.addConstraint(Sketcher.Constraint("Vertical", 14, 2, 17, 2))
sketch5.addConstraint(Sketcher.Constraint("Vertical", 19, 2, 20, 2))
sketch5.addConstraint(Sketcher.Constraint("Vertical", 18, 2, 21, 2))
sketch5.addConstraint(Sketcher.Constraint("Vertical", 3, 2, 24, 2))
sketch5.addConstraint(Sketcher.Constraint("Vertical", 2, 2, 25, 2))
sketch5.addConstraint(Sketcher.Constraint("Vertical", 27, 2, 28, 2))
sketch5.addConstraint(Sketcher.Constraint("Vertical", 26, 2, 29, 2))
sketch5.addConstraint(Sketcher.Constraint("Vertical", 31, 2, 32, 2))
sketch5.addConstraint(Sketcher.Constraint("Vertical", 30, 2, 33, 2))
sketch5.addConstraint(Sketcher.Constraint("Vertical", 35, 2, 36, 2))
sketch5.addConstraint(Sketcher.Constraint("Vertical", 34, 2, 37, 2))
sketch5.addConstraint(Sketcher.Constraint("Equal", 3, 5))
sketch5.addConstraint(Sketcher.Constraint("Equal", 6, 8))
sketch5.addConstraint(Sketcher.Constraint("Equal", 10, 12))
sketch5.addConstraint(Sketcher.Constraint("Equal", 14, 16))
sketch5.addConstraint(Sketcher.Constraint("Equal", 18, 20))
sketch5.addConstraint(Sketcher.Constraint("Equal", 22, 24))
sketch5.addConstraint(Sketcher.Constraint("Equal", 26, 28))
sketch5.addConstraint(Sketcher.Constraint("Equal", 30, 32))
sketch5.addConstraint(Sketcher.Constraint("Equal", 34, 36))
sketch5.addConstraint(Sketcher.Constraint("DistanceX", 1, 1, 1, 2, 80.0))
sketch5.addConstraint(Sketcher.Constraint("DistanceY", 0, 1, 0, 2, 8.0))
sketch5.addConstraint(Sketcher.Constraint("DistanceY", -1, 1, 0, 2, 15.0))
sketch5.addConstraint(Sketcher.Constraint("DistanceY", -1, 1, 24, 2, 33.0))
sketch5.addConstraint(Sketcher.Constraint("DistanceY", -1, 1, 28, 2, 51.0))
sketch5.addConstraint(Sketcher.Constraint("DistanceY", -1, 1, 32, 2, 69.0))
sketch5.addConstraint(Sketcher.Constraint("DistanceY", -1, 1, 36, 2, 87.0))
sketch5.addConstraint(Sketcher.Constraint("DistanceX", 1, 2, 4, 2, 26.0))
sketch5.addConstraint(Sketcher.Constraint("DistanceY", 8, 2, 12, 2, 18.0))
sketch5.addConstraint(Sketcher.Constraint("DistanceY", 12, 2, 16, 2, 18.0))
sketch5.addConstraint(Sketcher.Constraint("DistanceY", 16, 2, 20, 2, 18.0))
sketch5.addConstraint(Sketcher.Constraint("DistanceX", 0, 2, -1, 1, 67.206349))
sketch5.addConstraint(Sketcher.Constraint("DistanceY", -1, 1, 8, 2, 31.034238))
sketch5.setExpression("Constraints[107]", "Params.sketch5_width")
sketch5.setExpression("Constraints[108]", "Params.sketch5_height")
pocket2 = body.newObject("PartDesign::Pocket", "Pocket001")
pocket2.Profile = sketch5
pocket2.setExpression("Length", "Params.pocket2_length")
pocket2.Reversed = True

# Sketch on YZ plane
sketch6 = body.newObject("Sketcher::SketchObject", "Sketch005")
sketch6.AttachmentSupport = (doc.getObject("YZ_Plane"), [""])
sketch6.MapMode = "FlatFace"
sketch6.AttachmentOffset = App.Placement(Vector(0, 0, -77.206349), App.Rotation())
sketch6.addGeometry(Part.Circle(Vector(24, 52, 0), Vector(0, 0, 1), 10), False)
sketch6.addGeometry(Part.Circle(Vector(-42, 52, 0), Vector(0, 0, 1), 10), False)
sketch6.addGeometry(Part.LineSegment(Vector(34, 7, 0), Vector(-52, 7, 0)), False)
sketch6.addGeometry(Part.LineSegment(Vector(-52, 7, 0), Vector(-52, 27, 0)), False)
sketch6.addGeometry(Part.LineSegment(Vector(-52, 27, 0), Vector(34, 27, 0)), False)
sketch6.addGeometry(Part.LineSegment(Vector(34, 27, 0), Vector(34, 7, 0)), False)
sketch6.addConstraint(Sketcher.Constraint("Coincident", 2, 2, 3, 1))
sketch6.addConstraint(Sketcher.Constraint("Coincident", 3, 2, 4, 1))
sketch6.addConstraint(Sketcher.Constraint("Coincident", 4, 2, 5, 1))
sketch6.addConstraint(Sketcher.Constraint("Coincident", 5, 2, 2, 1))
sketch6.addConstraint(Sketcher.Constraint("Horizontal", 2))
sketch6.addConstraint(Sketcher.Constraint("Vertical", 3))
sketch6.addConstraint(Sketcher.Constraint("Horizontal", 4))
sketch6.addConstraint(Sketcher.Constraint("Vertical", 5))
sketch6.addConstraint(Sketcher.Constraint("Equal", 0, 1))
sketch6.addConstraint(Sketcher.Constraint("Horizontal", 0, 3, 1, 3))
sketch6.addConstraint(Sketcher.Constraint("Diameter", 0, 20.0))
sketch6.addConstraint(Sketcher.Constraint("DistanceX", 2, 2, 2, 1, 86.0))
sketch6.addConstraint(Sketcher.Constraint("DistanceY", 3, 1, 3, 2, 20.0))
sketch6.addConstraint(Sketcher.Constraint("DistanceY", -1, 1, 0, 3, 52.0))
sketch6.addConstraint(Sketcher.Constraint("DistanceY", -1, 1, 2, 2, 7.0))
sketch6.addConstraint(Sketcher.Constraint("DistanceX", 1, 3, 0, 3, 66.0))
sketch6.addConstraint(Sketcher.Constraint("DistanceX", 2, 2, 1, 3, 10.0))
sketch6.addConstraint(Sketcher.Constraint("DistanceX", -1, 1, 0, 3, 24.071429))
sketch6.setExpression("Constraints[10]", "Params.sketch6_diameter")
sketch6.setExpression("Constraints[11]", "Params.sketch6_width")
sketch6.setExpression("Constraints[12]", "Params.sketch6_height")
pocket3 = body.newObject("PartDesign::Pocket", "Pocket002")
pocket3.Profile = sketch6
pocket3.setExpression("Length", "Params.pocket3_length")
pocket3.Reversed = True

# Sketch on YZ plane
sketch7 = body.newObject("Sketcher::SketchObject", "Sketch006")
sketch7.AttachmentSupport = (doc.getObject("YZ_Plane"), [""])
sketch7.MapMode = "FlatFace"
sketch7.AttachmentOffset = App.Placement(Vector(0, 0, 128.793651), App.Rotation())
sketch7.addGeometry(Part.LineSegment(Vector(-52, 32, 0), Vector(34, 32, 0)), False)
sketch7.addGeometry(Part.LineSegment(Vector(34, 32, 0), Vector(34, 47, 0)), False)
sketch7.addGeometry(Part.LineSegment(Vector(34, 47, 0), Vector(-2, 47, 0)), False)
sketch7.addGeometry(Part.LineSegment(Vector(-2, 47, 0), Vector(-2, 57, 0)), False)
sketch7.addGeometry(Part.LineSegment(Vector(-2, 57, 0), Vector(-52, 57, 0)), False)
sketch7.addGeometry(Part.LineSegment(Vector(-52, 57, 0), Vector(-52, 32, 0)), False)
sketch7.addGeometry(Part.LineSegment(Vector(24, 22, 0), Vector(9, 22, 0)), False)
sketch7.addGeometry(Part.LineSegment(Vector(9, 22, 0), Vector(9, 7, 0)), False)
sketch7.addGeometry(Part.LineSegment(Vector(9, 7, 0), Vector(24, 7, 0)), False)
sketch7.addGeometry(Part.LineSegment(Vector(24, 7, 0), Vector(24, 22, 0)), False)
sketch7.addGeometry(Part.LineSegment(Vector(34, 83, 0), Vector(-52, 83, 0)), False)
sketch7.addGeometry(Part.LineSegment(Vector(-52, 83, 0), Vector(-52, 68, 0)), False)
sketch7.addGeometry(Part.LineSegment(Vector(-52, 68, 0), Vector(34, 68, 0)), False)
sketch7.addGeometry(Part.LineSegment(Vector(34, 68, 0), Vector(34, 83, 0)), False)
sketch7.addConstraint(Sketcher.Constraint("Coincident", 0, 2, 1, 1))
sketch7.addConstraint(Sketcher.Constraint("Coincident", 1, 2, 2, 1))
sketch7.addConstraint(Sketcher.Constraint("Coincident", 2, 2, 3, 1))
sketch7.addConstraint(Sketcher.Constraint("Coincident", 3, 2, 4, 1))
sketch7.addConstraint(Sketcher.Constraint("Coincident", 4, 2, 5, 1))
sketch7.addConstraint(Sketcher.Constraint("Coincident", 5, 2, 0, 1))
sketch7.addConstraint(Sketcher.Constraint("Coincident", 6, 2, 7, 1))
sketch7.addConstraint(Sketcher.Constraint("Coincident", 7, 2, 8, 1))
sketch7.addConstraint(Sketcher.Constraint("Coincident", 8, 2, 9, 1))
sketch7.addConstraint(Sketcher.Constraint("Coincident", 9, 2, 6, 1))
sketch7.addConstraint(Sketcher.Constraint("Coincident", 10, 2, 11, 1))
sketch7.addConstraint(Sketcher.Constraint("Coincident", 11, 2, 12, 1))
sketch7.addConstraint(Sketcher.Constraint("Coincident", 12, 2, 13, 1))
sketch7.addConstraint(Sketcher.Constraint("Coincident", 13, 2, 10, 1))
sketch7.addConstraint(Sketcher.Constraint("Horizontal", 0))
sketch7.addConstraint(Sketcher.Constraint("Vertical", 1))
sketch7.addConstraint(Sketcher.Constraint("Horizontal", 2))
sketch7.addConstraint(Sketcher.Constraint("Vertical", 3))
sketch7.addConstraint(Sketcher.Constraint("Horizontal", 4))
sketch7.addConstraint(Sketcher.Constraint("Vertical", 5))
sketch7.addConstraint(Sketcher.Constraint("Horizontal", 6))
sketch7.addConstraint(Sketcher.Constraint("Vertical", 7))
sketch7.addConstraint(Sketcher.Constraint("Horizontal", 8))
sketch7.addConstraint(Sketcher.Constraint("Vertical", 9))
sketch7.addConstraint(Sketcher.Constraint("Horizontal", 10))
sketch7.addConstraint(Sketcher.Constraint("Vertical", 11))
sketch7.addConstraint(Sketcher.Constraint("Horizontal", 12))
sketch7.addConstraint(Sketcher.Constraint("Vertical", 13))
sketch7.addConstraint(Sketcher.Constraint("Vertical", 5, 2, 10, 2))
sketch7.addConstraint(Sketcher.Constraint("Vertical", 1, 2, 12, 2))
sketch7.addConstraint(Sketcher.Constraint("Equal", 8, 1))
sketch7.addConstraint(Sketcher.Constraint("Equal", 1, 7))
sketch7.addConstraint(Sketcher.Constraint("Equal", 9, 11))
sketch7.addConstraint(Sketcher.Constraint("DistanceX", 0, 1, 0, 2, 86.0))
sketch7.addConstraint(Sketcher.Constraint("DistanceX", 2, 2, 2, 1, 36.0))
sketch7.addConstraint(Sketcher.Constraint("DistanceX", 6, 2, 6, 1, 15.0))
sketch7.addConstraint(Sketcher.Constraint("DistanceY", 3, 1, 3, 2, 10.0))
sketch7.addConstraint(Sketcher.Constraint("DistanceY", -1, 1, 0, 2, 32.0))
sketch7.addConstraint(Sketcher.Constraint("DistanceY", -1, 1, 6, 2, 22.0))
sketch7.addConstraint(Sketcher.Constraint("DistanceY", -1, 1, 10, 2, 83.0))
sketch7.addConstraint(Sketcher.Constraint("DistanceX", 6, 2, 0, 2, 25.0))
sketch7.addConstraint(Sketcher.Constraint("DistanceX", -1, 1, 0, 2, 34.071429))
sketch7.setExpression("Constraints[33]", "Params.sketch7_width")
sketch7.setExpression("Constraints[34]", "Params.sketch7_width2")
sketch7.setExpression("Constraints[35]", "Params.sketch7_width3")
sketch7.setExpression("Constraints[36]", "Params.sketch7_height")
pocket4 = body.newObject("PartDesign::Pocket", "Pocket003")
pocket4.Profile = sketch7
pocket4.setExpression("Length", "Params.pocket4_length")

doc.recompute()
